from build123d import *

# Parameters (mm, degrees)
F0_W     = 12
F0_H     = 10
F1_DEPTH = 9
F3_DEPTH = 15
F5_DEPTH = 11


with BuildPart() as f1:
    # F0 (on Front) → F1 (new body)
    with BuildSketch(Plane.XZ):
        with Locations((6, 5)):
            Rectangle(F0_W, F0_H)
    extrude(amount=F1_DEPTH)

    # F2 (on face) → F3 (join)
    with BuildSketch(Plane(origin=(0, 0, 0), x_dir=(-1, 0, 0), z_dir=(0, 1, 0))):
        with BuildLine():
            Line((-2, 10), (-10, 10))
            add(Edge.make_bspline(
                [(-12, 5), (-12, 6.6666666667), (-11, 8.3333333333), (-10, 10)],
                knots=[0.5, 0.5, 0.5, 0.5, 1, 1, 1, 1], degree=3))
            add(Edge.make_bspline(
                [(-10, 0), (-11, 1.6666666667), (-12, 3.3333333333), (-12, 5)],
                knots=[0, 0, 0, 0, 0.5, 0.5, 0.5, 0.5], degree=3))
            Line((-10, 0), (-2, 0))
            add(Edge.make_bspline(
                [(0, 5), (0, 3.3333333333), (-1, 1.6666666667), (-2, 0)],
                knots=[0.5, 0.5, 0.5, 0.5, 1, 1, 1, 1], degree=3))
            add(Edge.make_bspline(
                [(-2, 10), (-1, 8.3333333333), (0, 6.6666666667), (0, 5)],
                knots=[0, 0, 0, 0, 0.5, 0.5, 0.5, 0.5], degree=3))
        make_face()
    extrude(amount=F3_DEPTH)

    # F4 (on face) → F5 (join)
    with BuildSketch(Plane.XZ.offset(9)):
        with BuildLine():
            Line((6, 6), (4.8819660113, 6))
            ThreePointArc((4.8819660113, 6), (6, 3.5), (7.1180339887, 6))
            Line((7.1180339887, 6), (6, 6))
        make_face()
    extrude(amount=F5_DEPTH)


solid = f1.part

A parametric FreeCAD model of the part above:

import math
import FreeCAD as App
import Part
import Sketcher

V = App.Vector
Q = App.Units.Quantity


def add_polygon(sketch, points):
    """Adds a closed chain of lines whose ends are joined by coincident constraints."""
    first, n = sketch.GeometryCount, len(points)
    for a, b in zip(points, points[1:] + points[:1]):
        sketch.addGeometry(Part.LineSegment(App.Vector(*a, 0), App.Vector(*b, 0)), False)
    for i in range(n):
        sketch.addConstraint(Sketcher.Constraint("Coincident", first + i, 2, first + (i + 1) % n, 1))

doc = App.newDocument("Part")
body = doc.addObject("PartDesign::Body", "Body")

sketch1 = body.newObject("Sketcher::SketchObject", "Sketch")
sketch1.AttachmentSupport = (doc.getObject("XZ_Plane"), [""])
sketch1.MapMode = "FlatFace"
add_polygon(sketch1, [(0, 10), (0, 0), (12, 0), (12, 10)])
sketch1.addConstraint([
    Sketcher.Constraint("Vertical", 0),
    Sketcher.Constraint("Horizontal", 1),
    Sketcher.Constraint("Vertical", 2),
    Sketcher.Constraint("Horizontal", 3),
    Sketcher.Constraint("Coincident", 0, 2, -1, 1),
    Sketcher.Constraint("DistanceX", 1, 1, 1, 2, Q("12 mm")),
    Sketcher.Constraint("DistanceY", 0, 2, 0, 1, Q("10 mm")),
])
pad1 = body.newObject("PartDesign::Pad", "Pad")
pad1.Profile = sketch1
pad1.Length = 9

sketch2 = body.newObject("Sketcher::SketchObject", "Sketch001")
sketch2.AttachmentSupport = (doc.getObject("XZ_Plane"), [""])
sketch2.MapMode = "FlatFace"
sketch2.addGeometry([
    Part.LineSegment(V(2, 10, 0), V(10, 10, 0)),
    Part.BSplineCurve([V(10, 0, 0), V(11, 1.666667, 0), V(13, 5, 0), V(11, 8.333333, 0), V(10, 10, 0)], [4, 1, 4], [0, 0.5, 1], False, 3, [1, 1, 1, 1, 1], False),
    Part.LineSegment(V(10, 0, 0), V(2, 0, 0)),
    Part.BSplineCurve([V(2, 10, 0), V(1, 8.333333, 0), V(-1, 5, 0), V(1, 1.666667, 0), V(2, 0, 0)], [4, 1, 4], [0, 0.5, 1], False, 3, [1, 1, 1, 1, 1], False),
], False)
sketch2.addConstraint([
    Sketcher.Constraint("Block", 1),
    Sketcher.Constraint("Block", 3),
    Sketcher.Constraint("Coincident", 0, 2, 1, 2),
    Sketcher.Constraint("Coincident", 1, 1, 2, 1),
    Sketcher.Constraint("Coincident", 2, 2, 3, 2),
    Sketcher.Constraint("Coincident", 3, 1, 0, 1),
])
pad2 = body.newObject("PartDesign::Pad", "Pad001")
pad2.Profile = sketch2
pad2.Length = 15
pad2.Reversed = True

sketch3 = body.newObject("Sketcher::SketchObject", "Sketch002")
sketch3.AttachmentSupport = (doc.getObject("XZ_Plane"), [""])
sketch3.MapMode = "FlatFace"
sketch3.AttachmentOffset = App.Placement(V(0, 0, 9), App.Rotation())
sketch3.addGeometry([
    Part.ArcOfCircle(Part.Circle(V(6, 5, 0), V(0, 0, 1), 1.5), math.radians(138), math.radians(402)),
    Part.LineSegment(V(7.1, 6, 0), V(4.9, 6, 0)),
], False)
sketch3.addConstraint([
    Sketcher.Constraint("Coincident", 0, 1, 1, 2),
    Sketcher.Constraint("Coincident", 1, 1, 0, 2),
    Sketcher.Constraint("Horizontal", 1),
    Sketcher.Constraint("Radius", 0, Q("1.5 mm")),
    Sketcher.Constraint("DistanceX", -1, 1, 0, 3, Q("6 mm")),
    Sketcher.Constraint("DistanceY", -1, 1, 0, 3, Q("5 mm")),
    Sketcher.Constraint("DistanceY", -1, 1, 0, 1, Q("6 mm")),
])
pad3 = body.newObject("PartDesign::Pad", "Pad002")
pad3.Profile = sketch3
pad3.Length = 11

doc.recompute()
